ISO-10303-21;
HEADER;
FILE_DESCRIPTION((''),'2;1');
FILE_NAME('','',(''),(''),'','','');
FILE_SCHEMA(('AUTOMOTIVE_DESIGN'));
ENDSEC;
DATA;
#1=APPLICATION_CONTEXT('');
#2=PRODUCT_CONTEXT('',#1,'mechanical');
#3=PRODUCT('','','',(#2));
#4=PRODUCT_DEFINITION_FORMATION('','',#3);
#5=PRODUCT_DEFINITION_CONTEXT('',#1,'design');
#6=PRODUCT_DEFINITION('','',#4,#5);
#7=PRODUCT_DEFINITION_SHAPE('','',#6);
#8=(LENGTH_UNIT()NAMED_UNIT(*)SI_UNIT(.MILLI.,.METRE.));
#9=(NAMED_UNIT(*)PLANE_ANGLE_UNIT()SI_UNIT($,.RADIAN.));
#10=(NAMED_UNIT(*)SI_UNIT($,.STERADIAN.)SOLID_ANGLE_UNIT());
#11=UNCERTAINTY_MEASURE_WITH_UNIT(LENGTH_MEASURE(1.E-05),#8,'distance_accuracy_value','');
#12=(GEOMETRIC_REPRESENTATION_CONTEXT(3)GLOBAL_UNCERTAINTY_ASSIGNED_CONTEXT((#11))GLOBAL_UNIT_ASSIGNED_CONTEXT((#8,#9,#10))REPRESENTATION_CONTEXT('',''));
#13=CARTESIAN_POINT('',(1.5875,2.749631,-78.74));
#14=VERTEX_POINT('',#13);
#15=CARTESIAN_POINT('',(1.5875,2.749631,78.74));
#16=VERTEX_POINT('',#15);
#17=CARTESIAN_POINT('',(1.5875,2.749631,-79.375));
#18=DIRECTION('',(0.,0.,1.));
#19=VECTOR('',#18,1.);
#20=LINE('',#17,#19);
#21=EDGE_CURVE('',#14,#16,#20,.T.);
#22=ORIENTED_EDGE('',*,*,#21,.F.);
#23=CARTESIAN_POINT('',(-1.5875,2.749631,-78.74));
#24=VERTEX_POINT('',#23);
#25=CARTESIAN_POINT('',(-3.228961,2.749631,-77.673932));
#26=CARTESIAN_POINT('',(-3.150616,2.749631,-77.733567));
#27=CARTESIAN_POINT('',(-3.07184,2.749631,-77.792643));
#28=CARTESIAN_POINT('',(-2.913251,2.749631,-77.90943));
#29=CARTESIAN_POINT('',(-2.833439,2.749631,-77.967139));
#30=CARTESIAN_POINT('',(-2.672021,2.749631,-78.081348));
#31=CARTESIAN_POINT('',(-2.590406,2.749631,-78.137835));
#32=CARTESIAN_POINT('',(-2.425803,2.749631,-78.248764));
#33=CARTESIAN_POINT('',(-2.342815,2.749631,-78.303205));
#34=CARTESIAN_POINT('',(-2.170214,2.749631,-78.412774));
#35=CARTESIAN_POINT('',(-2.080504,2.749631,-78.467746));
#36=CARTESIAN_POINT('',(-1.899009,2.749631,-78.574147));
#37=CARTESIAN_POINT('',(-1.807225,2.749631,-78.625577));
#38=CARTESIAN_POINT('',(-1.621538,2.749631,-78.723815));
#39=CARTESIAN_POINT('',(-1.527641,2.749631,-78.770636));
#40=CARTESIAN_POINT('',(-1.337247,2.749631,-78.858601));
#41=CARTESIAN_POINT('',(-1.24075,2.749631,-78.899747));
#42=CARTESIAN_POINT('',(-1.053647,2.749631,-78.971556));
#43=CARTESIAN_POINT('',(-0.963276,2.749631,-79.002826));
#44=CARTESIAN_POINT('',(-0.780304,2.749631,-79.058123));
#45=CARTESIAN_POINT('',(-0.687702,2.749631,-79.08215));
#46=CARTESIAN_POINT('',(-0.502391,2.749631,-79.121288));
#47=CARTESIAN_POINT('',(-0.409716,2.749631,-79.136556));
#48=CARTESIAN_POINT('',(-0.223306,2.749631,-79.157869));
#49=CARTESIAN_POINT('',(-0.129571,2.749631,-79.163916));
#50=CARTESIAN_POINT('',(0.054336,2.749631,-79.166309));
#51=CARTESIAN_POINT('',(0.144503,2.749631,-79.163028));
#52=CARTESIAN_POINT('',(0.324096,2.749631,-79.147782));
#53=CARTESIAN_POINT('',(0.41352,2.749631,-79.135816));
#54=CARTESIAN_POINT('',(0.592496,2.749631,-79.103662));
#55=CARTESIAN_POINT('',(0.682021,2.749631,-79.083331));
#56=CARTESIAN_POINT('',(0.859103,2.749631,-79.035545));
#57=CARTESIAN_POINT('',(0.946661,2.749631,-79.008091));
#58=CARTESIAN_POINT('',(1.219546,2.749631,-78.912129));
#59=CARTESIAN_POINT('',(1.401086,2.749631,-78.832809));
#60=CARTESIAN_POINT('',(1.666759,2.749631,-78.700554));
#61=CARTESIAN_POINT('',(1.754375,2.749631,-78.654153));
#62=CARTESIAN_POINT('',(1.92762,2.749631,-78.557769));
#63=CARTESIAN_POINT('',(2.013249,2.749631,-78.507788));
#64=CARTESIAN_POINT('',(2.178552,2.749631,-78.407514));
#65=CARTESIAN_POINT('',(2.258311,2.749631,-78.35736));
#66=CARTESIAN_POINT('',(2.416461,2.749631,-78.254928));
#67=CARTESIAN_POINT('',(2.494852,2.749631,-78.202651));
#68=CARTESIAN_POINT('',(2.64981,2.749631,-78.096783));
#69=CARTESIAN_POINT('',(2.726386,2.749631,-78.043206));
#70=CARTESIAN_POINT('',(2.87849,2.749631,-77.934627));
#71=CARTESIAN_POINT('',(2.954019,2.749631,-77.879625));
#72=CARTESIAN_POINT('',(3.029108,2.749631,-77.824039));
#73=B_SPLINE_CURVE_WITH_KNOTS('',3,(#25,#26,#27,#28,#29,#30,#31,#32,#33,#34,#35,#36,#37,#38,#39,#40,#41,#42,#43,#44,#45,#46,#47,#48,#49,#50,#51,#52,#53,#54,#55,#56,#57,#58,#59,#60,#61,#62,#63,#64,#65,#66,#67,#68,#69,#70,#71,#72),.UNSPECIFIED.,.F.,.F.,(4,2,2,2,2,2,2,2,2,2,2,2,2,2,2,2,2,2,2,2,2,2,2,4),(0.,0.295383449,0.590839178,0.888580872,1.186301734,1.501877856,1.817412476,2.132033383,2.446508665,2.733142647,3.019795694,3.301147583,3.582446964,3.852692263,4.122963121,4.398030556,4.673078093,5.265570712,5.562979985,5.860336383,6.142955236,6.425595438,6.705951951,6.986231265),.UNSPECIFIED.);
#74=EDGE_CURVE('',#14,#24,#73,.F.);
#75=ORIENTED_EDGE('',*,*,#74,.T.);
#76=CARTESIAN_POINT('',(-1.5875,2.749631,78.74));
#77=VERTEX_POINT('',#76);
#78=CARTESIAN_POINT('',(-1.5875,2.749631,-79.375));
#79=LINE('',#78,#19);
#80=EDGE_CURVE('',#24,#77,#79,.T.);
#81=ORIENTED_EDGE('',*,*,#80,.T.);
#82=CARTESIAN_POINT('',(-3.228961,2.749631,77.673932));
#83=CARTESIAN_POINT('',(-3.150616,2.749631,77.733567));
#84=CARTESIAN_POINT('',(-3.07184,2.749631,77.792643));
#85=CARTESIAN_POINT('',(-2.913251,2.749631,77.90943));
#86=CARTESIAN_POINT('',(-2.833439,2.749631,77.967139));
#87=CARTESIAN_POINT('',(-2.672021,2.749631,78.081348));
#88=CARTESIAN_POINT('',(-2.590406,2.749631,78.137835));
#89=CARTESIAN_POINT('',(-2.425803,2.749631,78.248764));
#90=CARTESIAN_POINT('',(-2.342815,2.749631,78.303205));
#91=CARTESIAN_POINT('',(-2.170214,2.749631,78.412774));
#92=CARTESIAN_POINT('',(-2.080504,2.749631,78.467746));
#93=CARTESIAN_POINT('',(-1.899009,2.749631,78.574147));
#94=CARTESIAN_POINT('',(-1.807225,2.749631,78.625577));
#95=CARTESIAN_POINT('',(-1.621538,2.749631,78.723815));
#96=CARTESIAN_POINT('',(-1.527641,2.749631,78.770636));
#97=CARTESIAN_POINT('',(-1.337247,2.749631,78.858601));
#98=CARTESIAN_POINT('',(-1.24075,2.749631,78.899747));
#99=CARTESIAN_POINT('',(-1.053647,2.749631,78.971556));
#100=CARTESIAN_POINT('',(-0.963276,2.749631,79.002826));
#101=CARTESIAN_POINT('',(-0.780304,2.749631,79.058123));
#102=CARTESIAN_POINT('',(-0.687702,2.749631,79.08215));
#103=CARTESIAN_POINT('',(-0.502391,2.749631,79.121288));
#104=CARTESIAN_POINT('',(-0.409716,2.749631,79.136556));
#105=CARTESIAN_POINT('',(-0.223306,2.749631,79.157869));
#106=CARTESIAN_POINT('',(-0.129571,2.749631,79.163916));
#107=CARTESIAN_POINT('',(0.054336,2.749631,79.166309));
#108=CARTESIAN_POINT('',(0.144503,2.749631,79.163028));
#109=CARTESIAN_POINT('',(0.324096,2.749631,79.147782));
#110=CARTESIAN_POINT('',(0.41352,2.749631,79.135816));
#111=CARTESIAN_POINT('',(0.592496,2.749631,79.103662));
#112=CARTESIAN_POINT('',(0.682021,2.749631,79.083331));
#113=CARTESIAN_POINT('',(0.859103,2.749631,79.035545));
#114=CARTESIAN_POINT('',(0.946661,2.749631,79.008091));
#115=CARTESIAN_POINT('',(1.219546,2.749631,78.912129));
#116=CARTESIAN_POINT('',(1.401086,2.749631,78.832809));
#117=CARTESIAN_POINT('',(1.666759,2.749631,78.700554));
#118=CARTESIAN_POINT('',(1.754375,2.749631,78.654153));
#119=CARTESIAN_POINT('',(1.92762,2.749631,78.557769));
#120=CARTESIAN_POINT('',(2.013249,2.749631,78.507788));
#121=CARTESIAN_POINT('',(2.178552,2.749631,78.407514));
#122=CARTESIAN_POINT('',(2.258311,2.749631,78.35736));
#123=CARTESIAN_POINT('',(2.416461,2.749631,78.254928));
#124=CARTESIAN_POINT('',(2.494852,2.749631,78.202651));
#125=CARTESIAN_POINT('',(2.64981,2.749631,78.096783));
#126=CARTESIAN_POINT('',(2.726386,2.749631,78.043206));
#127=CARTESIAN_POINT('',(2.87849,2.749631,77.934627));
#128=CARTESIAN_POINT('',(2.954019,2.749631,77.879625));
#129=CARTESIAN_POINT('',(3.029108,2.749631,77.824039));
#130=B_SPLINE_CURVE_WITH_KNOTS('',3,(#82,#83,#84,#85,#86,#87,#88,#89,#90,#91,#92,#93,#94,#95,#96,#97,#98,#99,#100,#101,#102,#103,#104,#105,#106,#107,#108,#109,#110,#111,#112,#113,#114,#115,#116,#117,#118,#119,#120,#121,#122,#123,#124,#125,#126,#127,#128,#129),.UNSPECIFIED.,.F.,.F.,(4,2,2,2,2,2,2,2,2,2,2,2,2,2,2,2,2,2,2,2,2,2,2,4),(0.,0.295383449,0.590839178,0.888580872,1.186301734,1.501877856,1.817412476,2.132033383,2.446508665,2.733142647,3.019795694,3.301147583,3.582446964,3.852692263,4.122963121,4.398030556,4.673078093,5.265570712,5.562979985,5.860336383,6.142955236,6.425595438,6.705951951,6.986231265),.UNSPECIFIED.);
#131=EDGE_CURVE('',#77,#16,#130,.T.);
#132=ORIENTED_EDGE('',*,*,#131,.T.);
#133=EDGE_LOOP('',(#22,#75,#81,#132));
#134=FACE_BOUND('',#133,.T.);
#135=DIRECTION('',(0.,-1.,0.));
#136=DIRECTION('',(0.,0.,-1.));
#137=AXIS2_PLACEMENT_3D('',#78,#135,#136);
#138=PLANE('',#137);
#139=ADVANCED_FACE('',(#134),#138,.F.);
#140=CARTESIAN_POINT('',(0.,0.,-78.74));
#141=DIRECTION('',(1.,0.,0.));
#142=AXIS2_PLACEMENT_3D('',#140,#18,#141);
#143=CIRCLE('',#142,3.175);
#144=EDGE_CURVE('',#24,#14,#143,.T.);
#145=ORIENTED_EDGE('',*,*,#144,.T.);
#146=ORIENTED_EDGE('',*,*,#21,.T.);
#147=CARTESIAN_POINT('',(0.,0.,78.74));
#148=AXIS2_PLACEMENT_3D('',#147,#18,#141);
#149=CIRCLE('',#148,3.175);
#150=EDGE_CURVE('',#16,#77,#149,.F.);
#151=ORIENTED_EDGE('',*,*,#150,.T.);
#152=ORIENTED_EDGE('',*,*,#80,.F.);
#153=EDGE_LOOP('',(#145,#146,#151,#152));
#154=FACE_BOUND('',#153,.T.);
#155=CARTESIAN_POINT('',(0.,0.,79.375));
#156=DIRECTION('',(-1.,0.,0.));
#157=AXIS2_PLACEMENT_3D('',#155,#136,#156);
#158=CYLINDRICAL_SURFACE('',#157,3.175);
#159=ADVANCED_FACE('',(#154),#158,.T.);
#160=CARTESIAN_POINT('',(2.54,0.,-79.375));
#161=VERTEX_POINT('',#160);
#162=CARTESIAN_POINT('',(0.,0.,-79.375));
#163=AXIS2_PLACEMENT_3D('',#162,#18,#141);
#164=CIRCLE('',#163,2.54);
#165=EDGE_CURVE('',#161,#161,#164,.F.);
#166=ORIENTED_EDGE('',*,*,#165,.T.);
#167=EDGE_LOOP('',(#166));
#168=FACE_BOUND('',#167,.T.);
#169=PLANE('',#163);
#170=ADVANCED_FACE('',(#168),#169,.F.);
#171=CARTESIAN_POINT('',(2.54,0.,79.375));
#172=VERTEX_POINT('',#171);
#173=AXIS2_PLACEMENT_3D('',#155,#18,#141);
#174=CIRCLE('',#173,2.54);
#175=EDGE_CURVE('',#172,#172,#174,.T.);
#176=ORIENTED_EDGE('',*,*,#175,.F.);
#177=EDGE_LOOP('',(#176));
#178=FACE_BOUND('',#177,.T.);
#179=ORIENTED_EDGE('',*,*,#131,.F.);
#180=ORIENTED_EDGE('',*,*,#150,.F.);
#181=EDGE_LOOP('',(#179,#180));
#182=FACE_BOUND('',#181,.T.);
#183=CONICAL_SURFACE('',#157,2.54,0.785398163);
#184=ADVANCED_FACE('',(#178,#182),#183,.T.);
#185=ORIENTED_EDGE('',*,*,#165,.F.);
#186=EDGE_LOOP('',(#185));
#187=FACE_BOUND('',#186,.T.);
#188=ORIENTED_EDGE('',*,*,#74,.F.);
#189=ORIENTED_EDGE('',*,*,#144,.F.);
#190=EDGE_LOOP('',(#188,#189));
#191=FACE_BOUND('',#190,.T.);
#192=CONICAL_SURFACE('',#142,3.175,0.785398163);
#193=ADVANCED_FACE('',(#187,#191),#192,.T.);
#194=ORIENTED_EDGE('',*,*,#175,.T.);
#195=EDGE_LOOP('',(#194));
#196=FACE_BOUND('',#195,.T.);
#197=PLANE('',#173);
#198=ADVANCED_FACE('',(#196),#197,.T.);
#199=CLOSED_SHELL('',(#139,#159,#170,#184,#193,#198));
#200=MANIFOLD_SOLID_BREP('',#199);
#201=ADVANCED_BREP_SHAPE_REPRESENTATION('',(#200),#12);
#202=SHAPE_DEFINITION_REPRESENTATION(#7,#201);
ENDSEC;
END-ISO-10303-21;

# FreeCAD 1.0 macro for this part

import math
import FreeCAD as App
import Part
import Sketcher
Q = App.Units.Quantity


def edges_at(feature, points):
    """Names of the edges that pass closest to the given points."""
    edges = feature.Shape.Edges
    near = lambda p: min(range(len(edges)), key=lambda i: edges[i].distToShape(Part.Vertex(*p))[0])
    return sorted({f"Edge{near(p) + 1}" for p in points})

doc = App.newDocument("Part")
params = doc.addObject("Spreadsheet::Sheet", "Params")
for row, (alias, value) in enumerate([
    ("sketch1_diameter", "0.25 in"),
    ("pad1_length", "6.25 in"),
    ("chamfer_size", "0.025 in"),
    ("sketch2_radius", "0.125 in"),
    ("sketch2_width", "0.125 in"),
], start=1):
    params.set(f"A{row}", alias)
    params.set(f"B{row}", "=" + value)
    params.setAlias(f"B{row}", alias)

body = doc.addObject("PartDesign::Body", "Body")

# Sketch on XY plane
sketch1 = doc.addObject("Sketcher::SketchObject", "Sketch")
body.addObject(sketch1)
sketch1.AttachmentSupport = (doc.XY_Plane, [""])
sketch1.MapMode = "FlatFace"
sketch1.addGeometry(Part.Circle(App.Vector(0, 0, 0), App.Vector(0, 0, 1), 3.175), False)
sketch1.addConstraint(Sketcher.Constraint("Coincident", 0, 3, -1, 1))
sketch1.addConstraint(Sketcher.Constraint("Diameter", 0, Q("0.25 in")))
sketch1.setExpression("Constraints[1]", "Params.sketch1_diameter")
pad1 = doc.addObject("PartDesign::Pad", "Pad")
body.addObject(pad1)
pad1.Profile = sketch1
pad1.setExpression("Length", "Params.pad1_length")
pad1.Midplane = True
doc.recompute()

chamfer = doc.addObject("PartDesign::Chamfer", "Chamfer")
body.addObject(chamfer)
chamfer.Base = (pad1, edges_at(pad1, [(-3.175, 0, -79.375), (-3.175, 0, 79.375)]))
chamfer.setExpression("Size", "Params.chamfer_size")

# Sketch on XY plane
sketch2 = doc.addObject("Sketcher::SketchObject", "Sketch001")
body.addObject(sketch2)
sketch2.AttachmentSupport = (doc.XY_Plane, [""])
sketch2.MapMode = "FlatFace"
sketch2.addGeometry(Part.LineSegment(App.Vector(-1.5875, 2.749631, 0), App.Vector(1.5875, 2.749631, 0)), False)
sketch2.addGeometry(Part.ArcOfCircle(Part.Circle(App.Vector(0, 0, 0), App.Vector(0, 0, 1), 3.175), math.radians(60), math.radians(120)), False)
sketch2.addConstraint(Sketcher.Constraint("Coincident", 0, 1, 1, 2))
sketch2.addConstraint(Sketcher.Constraint("Coincident", 1, 1, 0, 2))
sketch2.addConstraint(Sketcher.Constraint("Horizontal", 0))
sketch2.addConstraint(Sketcher.Constraint("Coincident", 1, 3, -1, 1))
sketch2.addConstraint(Sketcher.Constraint("Radius", 1, Q("0.125 in")))
sketch2.addConstraint(Sketcher.Constraint("DistanceX", 0, 1, 0, 2, Q("0.125 in")))
sketch2.setExpression("Constraints[4]", "Params.sketch2_radius")
sketch2.setExpression("Constraints[5]", "Params.sketch2_width")
pocket1 = doc.addObject("PartDesign::Pocket", "Pocket")
body.addObject(pocket1)
pocket1.Profile = sketch2
pocket1.Type = "ThroughAll"
pocket1.Midplane = True

doc.recompute()
